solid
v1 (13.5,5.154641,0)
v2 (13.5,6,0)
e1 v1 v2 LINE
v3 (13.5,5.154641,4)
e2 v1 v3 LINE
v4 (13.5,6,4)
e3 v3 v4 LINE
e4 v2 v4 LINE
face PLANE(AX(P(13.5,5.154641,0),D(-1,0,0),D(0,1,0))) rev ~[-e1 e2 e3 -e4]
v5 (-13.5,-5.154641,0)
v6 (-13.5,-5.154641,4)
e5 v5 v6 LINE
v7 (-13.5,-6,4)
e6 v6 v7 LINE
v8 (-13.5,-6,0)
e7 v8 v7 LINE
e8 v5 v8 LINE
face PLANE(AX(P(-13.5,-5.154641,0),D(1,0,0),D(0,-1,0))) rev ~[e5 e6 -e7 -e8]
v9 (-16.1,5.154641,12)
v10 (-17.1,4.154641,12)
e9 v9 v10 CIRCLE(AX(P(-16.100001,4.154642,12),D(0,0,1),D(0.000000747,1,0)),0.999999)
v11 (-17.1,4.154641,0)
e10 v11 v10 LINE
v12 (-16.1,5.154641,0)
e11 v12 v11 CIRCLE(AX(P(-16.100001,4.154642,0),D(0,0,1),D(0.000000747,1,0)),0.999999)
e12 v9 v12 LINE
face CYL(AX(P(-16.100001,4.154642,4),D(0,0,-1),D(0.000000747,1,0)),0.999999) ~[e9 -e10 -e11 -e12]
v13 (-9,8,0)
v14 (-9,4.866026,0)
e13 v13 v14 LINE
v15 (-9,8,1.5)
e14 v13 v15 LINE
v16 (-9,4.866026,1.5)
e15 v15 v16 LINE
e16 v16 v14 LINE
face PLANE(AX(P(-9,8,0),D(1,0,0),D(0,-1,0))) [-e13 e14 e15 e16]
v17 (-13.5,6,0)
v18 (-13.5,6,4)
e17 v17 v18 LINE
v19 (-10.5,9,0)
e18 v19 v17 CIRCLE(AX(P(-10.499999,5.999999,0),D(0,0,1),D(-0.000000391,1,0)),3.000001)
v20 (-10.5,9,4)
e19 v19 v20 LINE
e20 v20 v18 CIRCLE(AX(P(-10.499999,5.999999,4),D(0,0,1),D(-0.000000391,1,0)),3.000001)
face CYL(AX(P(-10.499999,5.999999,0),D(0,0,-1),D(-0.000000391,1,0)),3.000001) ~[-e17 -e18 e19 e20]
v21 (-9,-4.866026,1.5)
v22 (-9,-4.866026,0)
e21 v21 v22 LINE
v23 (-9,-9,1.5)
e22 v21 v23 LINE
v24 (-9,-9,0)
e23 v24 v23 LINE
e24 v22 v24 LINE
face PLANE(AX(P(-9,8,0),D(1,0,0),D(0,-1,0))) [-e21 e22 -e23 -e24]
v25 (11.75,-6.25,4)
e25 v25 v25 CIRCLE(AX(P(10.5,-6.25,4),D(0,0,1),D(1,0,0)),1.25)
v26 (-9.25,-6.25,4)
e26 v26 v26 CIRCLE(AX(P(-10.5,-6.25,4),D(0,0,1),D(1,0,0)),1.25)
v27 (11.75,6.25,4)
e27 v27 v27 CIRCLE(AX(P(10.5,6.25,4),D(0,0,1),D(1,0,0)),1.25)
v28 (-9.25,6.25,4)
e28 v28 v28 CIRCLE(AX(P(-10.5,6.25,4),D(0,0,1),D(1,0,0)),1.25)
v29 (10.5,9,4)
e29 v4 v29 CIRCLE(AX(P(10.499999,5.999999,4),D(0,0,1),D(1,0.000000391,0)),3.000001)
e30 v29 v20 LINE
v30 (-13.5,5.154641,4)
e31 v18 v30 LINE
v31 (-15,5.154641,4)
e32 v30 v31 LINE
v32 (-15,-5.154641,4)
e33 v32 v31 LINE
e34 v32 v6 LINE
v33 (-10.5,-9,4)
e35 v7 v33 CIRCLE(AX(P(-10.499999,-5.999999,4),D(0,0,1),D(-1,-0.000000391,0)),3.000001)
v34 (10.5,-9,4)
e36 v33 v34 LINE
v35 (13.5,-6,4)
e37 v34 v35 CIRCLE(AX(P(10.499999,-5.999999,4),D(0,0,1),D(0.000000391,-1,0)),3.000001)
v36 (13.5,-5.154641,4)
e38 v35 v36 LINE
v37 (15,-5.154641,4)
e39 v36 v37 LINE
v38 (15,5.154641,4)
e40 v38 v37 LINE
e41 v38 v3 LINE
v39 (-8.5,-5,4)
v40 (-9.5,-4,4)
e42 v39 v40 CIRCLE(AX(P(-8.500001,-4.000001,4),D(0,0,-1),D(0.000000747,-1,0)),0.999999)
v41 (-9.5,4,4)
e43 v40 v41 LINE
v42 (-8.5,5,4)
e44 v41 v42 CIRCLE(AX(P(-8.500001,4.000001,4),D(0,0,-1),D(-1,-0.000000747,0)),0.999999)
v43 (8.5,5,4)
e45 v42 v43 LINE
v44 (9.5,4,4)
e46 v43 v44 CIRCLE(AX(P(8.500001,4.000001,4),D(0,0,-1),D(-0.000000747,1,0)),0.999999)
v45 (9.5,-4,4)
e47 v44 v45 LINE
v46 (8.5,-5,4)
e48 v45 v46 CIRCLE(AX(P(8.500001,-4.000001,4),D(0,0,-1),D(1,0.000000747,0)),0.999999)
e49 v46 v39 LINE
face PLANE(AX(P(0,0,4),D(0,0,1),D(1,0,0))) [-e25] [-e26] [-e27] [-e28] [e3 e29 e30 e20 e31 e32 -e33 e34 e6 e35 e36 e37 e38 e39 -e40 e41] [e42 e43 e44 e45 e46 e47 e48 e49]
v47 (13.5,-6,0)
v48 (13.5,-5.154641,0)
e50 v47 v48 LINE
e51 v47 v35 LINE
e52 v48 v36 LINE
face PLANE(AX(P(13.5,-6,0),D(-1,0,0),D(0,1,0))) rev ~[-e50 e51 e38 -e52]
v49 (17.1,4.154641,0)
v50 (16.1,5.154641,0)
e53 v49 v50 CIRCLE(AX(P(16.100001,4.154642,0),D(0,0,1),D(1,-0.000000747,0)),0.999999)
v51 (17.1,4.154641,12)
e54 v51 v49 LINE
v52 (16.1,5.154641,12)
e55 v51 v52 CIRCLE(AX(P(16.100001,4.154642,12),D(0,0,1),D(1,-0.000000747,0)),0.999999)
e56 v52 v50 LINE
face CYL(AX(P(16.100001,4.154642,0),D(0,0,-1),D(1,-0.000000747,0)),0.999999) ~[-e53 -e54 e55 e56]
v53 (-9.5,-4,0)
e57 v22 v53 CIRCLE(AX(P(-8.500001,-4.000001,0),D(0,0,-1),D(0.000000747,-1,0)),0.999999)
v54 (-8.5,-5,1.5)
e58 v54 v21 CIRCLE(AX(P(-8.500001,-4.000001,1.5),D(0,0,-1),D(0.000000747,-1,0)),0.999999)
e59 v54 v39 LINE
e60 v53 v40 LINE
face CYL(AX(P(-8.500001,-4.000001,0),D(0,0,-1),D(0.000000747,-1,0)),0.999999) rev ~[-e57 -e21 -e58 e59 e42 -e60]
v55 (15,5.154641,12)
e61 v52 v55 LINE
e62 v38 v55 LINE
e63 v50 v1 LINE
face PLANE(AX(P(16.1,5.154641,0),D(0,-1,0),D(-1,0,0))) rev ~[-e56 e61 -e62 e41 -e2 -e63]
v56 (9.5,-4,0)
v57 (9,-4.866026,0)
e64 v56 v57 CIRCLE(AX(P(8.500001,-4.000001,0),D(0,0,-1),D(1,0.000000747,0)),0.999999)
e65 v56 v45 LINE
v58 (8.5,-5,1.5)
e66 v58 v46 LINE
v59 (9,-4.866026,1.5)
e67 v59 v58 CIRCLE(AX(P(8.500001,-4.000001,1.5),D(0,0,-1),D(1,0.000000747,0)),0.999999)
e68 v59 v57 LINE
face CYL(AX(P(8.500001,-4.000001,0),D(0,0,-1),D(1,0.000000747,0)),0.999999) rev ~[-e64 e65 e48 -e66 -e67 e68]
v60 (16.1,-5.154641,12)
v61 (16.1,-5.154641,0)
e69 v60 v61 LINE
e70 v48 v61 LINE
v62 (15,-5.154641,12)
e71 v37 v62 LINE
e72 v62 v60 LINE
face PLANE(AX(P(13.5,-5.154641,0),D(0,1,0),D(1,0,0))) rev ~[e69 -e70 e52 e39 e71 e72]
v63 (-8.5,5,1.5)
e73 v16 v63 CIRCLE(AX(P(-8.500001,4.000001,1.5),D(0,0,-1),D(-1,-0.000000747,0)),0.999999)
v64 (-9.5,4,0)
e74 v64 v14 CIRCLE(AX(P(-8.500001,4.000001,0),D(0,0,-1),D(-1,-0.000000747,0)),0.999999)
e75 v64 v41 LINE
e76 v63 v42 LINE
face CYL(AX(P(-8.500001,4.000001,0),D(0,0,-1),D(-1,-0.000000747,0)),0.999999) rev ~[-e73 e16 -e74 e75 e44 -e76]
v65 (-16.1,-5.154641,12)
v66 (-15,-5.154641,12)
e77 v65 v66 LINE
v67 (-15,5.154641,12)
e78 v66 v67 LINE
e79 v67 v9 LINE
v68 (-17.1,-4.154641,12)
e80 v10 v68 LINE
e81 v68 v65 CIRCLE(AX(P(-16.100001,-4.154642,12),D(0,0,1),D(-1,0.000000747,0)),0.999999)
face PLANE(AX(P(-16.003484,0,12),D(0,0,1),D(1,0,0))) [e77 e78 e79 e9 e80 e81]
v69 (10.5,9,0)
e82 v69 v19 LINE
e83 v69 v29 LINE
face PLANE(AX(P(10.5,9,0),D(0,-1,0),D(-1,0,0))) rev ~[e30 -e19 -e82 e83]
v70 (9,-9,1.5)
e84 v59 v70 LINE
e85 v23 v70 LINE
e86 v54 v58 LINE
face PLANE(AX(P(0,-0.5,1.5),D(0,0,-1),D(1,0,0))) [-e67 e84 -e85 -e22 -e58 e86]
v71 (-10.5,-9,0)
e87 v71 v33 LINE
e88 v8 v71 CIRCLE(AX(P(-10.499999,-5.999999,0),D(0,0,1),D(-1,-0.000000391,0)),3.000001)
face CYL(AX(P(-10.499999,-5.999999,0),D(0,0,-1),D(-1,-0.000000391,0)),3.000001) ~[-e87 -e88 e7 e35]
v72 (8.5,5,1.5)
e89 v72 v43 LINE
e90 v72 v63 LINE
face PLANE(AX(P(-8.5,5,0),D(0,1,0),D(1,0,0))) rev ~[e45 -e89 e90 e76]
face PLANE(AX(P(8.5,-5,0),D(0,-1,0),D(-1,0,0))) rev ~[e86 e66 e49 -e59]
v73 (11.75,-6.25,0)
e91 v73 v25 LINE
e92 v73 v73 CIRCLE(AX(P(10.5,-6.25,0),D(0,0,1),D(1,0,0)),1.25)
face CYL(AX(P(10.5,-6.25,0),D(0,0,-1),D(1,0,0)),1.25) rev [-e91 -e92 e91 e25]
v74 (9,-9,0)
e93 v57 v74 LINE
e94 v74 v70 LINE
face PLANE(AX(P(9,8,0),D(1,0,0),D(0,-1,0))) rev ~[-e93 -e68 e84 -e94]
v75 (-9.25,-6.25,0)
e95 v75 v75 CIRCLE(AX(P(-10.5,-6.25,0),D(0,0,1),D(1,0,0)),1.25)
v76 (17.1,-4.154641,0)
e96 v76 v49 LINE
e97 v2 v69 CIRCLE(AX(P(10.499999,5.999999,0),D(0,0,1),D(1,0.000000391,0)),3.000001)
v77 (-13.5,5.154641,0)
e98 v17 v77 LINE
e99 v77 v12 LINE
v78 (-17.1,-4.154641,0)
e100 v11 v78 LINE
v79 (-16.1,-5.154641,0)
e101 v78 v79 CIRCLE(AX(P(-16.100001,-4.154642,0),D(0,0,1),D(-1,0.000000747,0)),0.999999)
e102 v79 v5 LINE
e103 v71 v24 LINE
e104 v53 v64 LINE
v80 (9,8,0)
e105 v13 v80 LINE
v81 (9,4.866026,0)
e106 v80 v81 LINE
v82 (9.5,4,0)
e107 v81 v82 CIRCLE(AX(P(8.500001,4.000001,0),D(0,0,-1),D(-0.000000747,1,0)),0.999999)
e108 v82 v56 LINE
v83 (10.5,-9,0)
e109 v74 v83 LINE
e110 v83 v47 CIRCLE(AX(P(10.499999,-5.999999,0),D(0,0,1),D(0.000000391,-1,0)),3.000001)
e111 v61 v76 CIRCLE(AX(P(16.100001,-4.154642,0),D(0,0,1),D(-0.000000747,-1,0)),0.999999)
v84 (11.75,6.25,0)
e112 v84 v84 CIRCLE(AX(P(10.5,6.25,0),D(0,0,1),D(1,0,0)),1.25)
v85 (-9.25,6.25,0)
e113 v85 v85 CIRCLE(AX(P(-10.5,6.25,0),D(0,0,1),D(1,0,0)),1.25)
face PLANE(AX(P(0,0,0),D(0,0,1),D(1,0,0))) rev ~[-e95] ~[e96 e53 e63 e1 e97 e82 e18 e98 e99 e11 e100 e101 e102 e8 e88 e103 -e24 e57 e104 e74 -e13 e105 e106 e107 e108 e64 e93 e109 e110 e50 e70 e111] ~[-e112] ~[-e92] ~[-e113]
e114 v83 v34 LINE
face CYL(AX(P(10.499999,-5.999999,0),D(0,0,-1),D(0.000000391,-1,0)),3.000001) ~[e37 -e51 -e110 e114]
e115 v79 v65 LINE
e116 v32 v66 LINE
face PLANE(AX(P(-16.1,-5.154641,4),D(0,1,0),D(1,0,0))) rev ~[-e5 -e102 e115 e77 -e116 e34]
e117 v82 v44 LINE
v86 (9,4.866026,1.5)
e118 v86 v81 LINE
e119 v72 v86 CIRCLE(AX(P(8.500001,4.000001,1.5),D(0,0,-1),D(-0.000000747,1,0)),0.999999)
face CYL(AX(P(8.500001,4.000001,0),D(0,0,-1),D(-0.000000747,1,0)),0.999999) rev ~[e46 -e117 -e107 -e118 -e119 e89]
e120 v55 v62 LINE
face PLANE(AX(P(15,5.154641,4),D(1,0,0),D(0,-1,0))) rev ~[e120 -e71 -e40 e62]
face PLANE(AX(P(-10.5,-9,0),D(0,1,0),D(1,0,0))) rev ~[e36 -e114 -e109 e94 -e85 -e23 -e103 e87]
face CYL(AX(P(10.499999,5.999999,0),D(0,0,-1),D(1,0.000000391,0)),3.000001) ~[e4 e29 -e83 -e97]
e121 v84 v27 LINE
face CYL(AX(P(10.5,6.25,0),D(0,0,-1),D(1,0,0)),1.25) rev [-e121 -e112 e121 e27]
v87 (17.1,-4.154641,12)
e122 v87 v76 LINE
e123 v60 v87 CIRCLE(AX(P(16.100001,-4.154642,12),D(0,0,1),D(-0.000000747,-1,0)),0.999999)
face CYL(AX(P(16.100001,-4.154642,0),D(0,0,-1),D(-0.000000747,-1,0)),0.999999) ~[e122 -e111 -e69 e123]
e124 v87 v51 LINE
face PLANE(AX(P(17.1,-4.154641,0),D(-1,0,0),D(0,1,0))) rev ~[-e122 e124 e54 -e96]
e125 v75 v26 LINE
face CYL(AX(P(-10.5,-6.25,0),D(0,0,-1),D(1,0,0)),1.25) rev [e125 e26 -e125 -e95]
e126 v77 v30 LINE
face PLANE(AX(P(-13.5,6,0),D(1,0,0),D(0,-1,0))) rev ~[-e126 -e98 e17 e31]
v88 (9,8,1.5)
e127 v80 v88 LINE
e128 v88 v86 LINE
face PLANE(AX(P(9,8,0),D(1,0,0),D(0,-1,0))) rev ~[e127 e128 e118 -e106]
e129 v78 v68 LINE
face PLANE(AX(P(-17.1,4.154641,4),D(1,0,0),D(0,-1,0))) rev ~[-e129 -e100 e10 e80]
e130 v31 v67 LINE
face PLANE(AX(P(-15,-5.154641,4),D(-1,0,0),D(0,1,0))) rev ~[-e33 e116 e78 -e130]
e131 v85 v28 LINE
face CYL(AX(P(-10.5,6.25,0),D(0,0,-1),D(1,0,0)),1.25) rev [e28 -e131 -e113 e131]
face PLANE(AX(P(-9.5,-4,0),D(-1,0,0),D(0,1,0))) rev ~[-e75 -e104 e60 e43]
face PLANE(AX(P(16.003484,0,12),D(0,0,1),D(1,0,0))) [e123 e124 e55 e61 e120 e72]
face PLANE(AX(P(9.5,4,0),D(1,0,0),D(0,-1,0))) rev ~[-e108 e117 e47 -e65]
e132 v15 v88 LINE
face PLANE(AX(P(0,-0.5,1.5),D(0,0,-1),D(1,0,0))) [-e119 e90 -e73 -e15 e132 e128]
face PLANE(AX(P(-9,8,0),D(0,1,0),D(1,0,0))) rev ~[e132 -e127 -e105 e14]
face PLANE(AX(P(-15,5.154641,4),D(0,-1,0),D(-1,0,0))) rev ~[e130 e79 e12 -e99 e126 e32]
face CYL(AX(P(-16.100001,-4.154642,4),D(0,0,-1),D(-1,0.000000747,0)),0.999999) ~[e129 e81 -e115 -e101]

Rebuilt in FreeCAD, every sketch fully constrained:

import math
import FreeCAD as App
import Part
import Sketcher

doc = App.newDocument("Part")
body = doc.addObject("PartDesign::Body", "Body")

sketch1 = body.newObject("Sketcher::SketchObject", "Sketch")
sketch1.AttachmentSupport = (doc.getObject("XY_Plane"), [""])
sketch1.MapMode = "FlatFace"
sketch1.addGeometry([
    Part.LineSegment(App.Vector(-10.5, -9, 0), App.Vector(10.5, -9, 0)),
    Part.ArcOfCircle(Part.Circle(App.Vector(10.5, -6, 0), App.Vector(0, 0, 1), 3), math.radians(-90), math.radians(0)),
    Part.LineSegment(App.Vector(13.5, -6, 0), App.Vector(13.5, -5.2, 0)),
    Part.LineSegment(App.Vector(13.5, -5.2, 0), App.Vector(16.1, -5.2, 0)),
    Part.ArcOfCircle(Part.Circle(App.Vector(16.1, -4.2, 0), App.Vector(0, 0, 1), 1), math.radians(-90), math.radians(0)),
    Part.LineSegment(App.Vector(17.1, -4.2, 0), App.Vector(17.1, 4.2, 0)),
    Part.ArcOfCircle(Part.Circle(App.Vector(16.1, 4.2, 0), App.Vector(0, 0, 1), 1), math.radians(0), math.radians(90)),
    Part.LineSegment(App.Vector(16.1, 5.2, 0), App.Vector(13.5, 5.2, 0)),
    Part.LineSegment(App.Vector(13.5, 5.2, 0), App.Vector(13.5, 6, 0)),
    Part.ArcOfCircle(Part.Circle(App.Vector(10.5, 6, 0), App.Vector(0, 0, 1), 3), math.radians(0), math.radians(90)),
    Part.LineSegment(App.Vector(10.5, 9, 0), App.Vector(-10.5, 9, 0)),
    Part.ArcOfCircle(Part.Circle(App.Vector(-10.5, 6, 0), App.Vector(0, 0, 1), 3), math.radians(90), math.radians(180)),
    Part.LineSegment(App.Vector(-13.5, 6, 0), App.Vector(-13.5, 5.2, 0)),
    Part.LineSegment(App.Vector(-13.5, 5.2, 0), App.Vector(-16.1, 5.2, 0)),
    Part.ArcOfCircle(Part.Circle(App.Vector(-16.1, 4.2, 0), App.Vector(0, 0, 1), 1), math.radians(90), math.radians(180)),
    Part.LineSegment(App.Vector(-17.1, 4.2, 0), App.Vector(-17.1, -4.2, 0)),
    Part.ArcOfCircle(Part.Circle(App.Vector(-16.1, -4.2, 0), App.Vector(0, 0, 1), 1), math.radians(180), math.radians(270)),
    Part.LineSegment(App.Vector(-16.1, -5.2, 0), App.Vector(-13.5, -5.2, 0)),
    Part.LineSegment(App.Vector(-13.5, -5.2, 0), App.Vector(-13.5, -6, 0)),
    Part.ArcOfCircle(Part.Circle(App.Vector(-10.5, -6, 0), App.Vector(0, 0, 1), 3), math.radians(-180), math.radians(-90)),
    Part.Circle(App.Vector(-10.5, -6.2, 0), App.Vector(0, 0, 1), 1.2),
    Part.Circle(App.Vector(10.5, -6.2, 0), App.Vector(0, 0, 1), 1.2),
    Part.Circle(App.Vector(-10.5, 6.2, 0), App.Vector(0, 0, 1), 1.2),
    Part.LineSegment(App.Vector(9.5, 4, 0), App.Vector(9.5, -4, 0)),
    Part.ArcOfCircle(Part.Circle(App.Vector(8.5, -4, 0), App.Vector(0, 0, 1), 1), math.radians(-90), math.radians(0)),
    Part.LineSegment(App.Vector(8.5, -5, 0), App.Vector(-8.5, -5, 0)),
    Part.ArcOfCircle(Part.Circle(App.Vector(-8.5, -4, 0), App.Vector(0, 0, 1), 1), math.radians(180), math.radians(270)),
    Part.LineSegment(App.Vector(-9.5, -4, 0), App.Vector(-9.5, 4, 0)),
    Part.ArcOfCircle(Part.Circle(App.Vector(-8.5, 4, 0), App.Vector(0, 0, 1), 1), math.radians(90), math.radians(180)),
    Part.LineSegment(App.Vector(-8.5, 5, 0), App.Vector(8.5, 5, 0)),
    Part.ArcOfCircle(Part.Circle(App.Vector(8.5, 4, 0), App.Vector(0, 0, 1), 1), math.radians(0), math.radians(90)),
    Part.Circle(App.Vector(10.5, 6.2, 0), App.Vector(0, 0, 1), 1.2),
], False)
sketch1.addConstraint([
    Sketcher.Constraint("Tangent", 0, 2, 1, 1),
    Sketcher.Constraint("Tangent", 1, 2, 2, 1),
    Sketcher.Constraint("Coincident", 2, 2, 3, 1),
    Sketcher.Constraint("Tangent", 3, 2, 4, 1),
    Sketcher.Constraint("Tangent", 4, 2, 5, 1),
    Sketcher.Constraint("Tangent", 5, 2, 6, 1),
    Sketcher.Constraint("Tangent", 6, 2, 7, 1),
    Sketcher.Constraint("Coincident", 7, 2, 8, 1),
    Sketcher.Constraint("Tangent", 8, 2, 9, 1),
    Sketcher.Constraint("Tangent", 9, 2, 10, 1),
    Sketcher.Constraint("Tangent", 10, 2, 11, 1),
    Sketcher.Constraint("Tangent", 11, 2, 12, 1),
    Sketcher.Constraint("Coincident", 12, 2, 13, 1),
    Sketcher.Constraint("Tangent", 13, 2, 14, 1),
    Sketcher.Constraint("Tangent", 14, 2, 15, 1),
    Sketcher.Constraint("Tangent", 15, 2, 16, 1),
    Sketcher.Constraint("Tangent", 16, 2, 17, 1),
    Sketcher.Constraint("Coincident", 17, 2, 18, 1),
    Sketcher.Constraint("Tangent", 18, 2, 19, 1),
    Sketcher.Constraint("Tangent", 19, 2, 0, 1),
    Sketcher.Constraint("Tangent", 23, 2, 24, 2),
    Sketcher.Constraint("Tangent", 24, 1, 25, 1),
    Sketcher.Constraint("Tangent", 25, 2, 26, 2),
    Sketcher.Constraint("Tangent", 26, 1, 27, 1),
    Sketcher.Constraint("Tangent", 27, 2, 28, 2),
    Sketcher.Constraint("Tangent", 28, 1, 29, 1),
    Sketcher.Constraint("Tangent", 29, 2, 30, 2),
    Sketcher.Constraint("Tangent", 30, 1, 23, 1),
    Sketcher.Constraint("Horizontal", 0),
    Sketcher.Constraint("Vertical", 2),
    Sketcher.Constraint("Horizontal", 3),
    Sketcher.Constraint("Vertical", 5),
    Sketcher.Constraint("Horizontal", 7),
    Sketcher.Constraint("Vertical", 8),
    Sketcher.Constraint("Horizontal", 10),
    Sketcher.Constraint("Vertical", 12),
    Sketcher.Constraint("Horizontal", 13),
    Sketcher.Constraint("Vertical", 15),
    Sketcher.Constraint("Horizontal", 17),
    Sketcher.Constraint("Vertical", 18),
    Sketcher.Constraint("Vertical", 23),
    Sketcher.Constraint("Horizontal", 25),
    Sketcher.Constraint("Vertical", 27),
    Sketcher.Constraint("Horizontal", 29),
    Sketcher.Constraint("Equal", 4, 6),
    Sketcher.Constraint("Equal", 1, 9),
    Sketcher.Constraint("Equal", 9, 11),
    Sketcher.Constraint("Equal", 6, 14),
    Sketcher.Constraint("Equal", 14, 16),
    Sketcher.Constraint("Equal", 11, 19),
    Sketcher.Constraint("Equal", 20, 21),
    Sketcher.Constraint("Equal", 21, 22),
    Sketcher.Constraint("Equal", 16, 24),
    Sketcher.Constraint("Equal", 24, 26),
    Sketcher.Constraint("Equal", 26, 28),
    Sketcher.Constraint("Equal", 28, 30),
    Sketcher.Constraint("Equal", 22, 31),
    Sketcher.Constraint("Symmetric", 1, 3, 11, 3, -1, 1),
    Sketcher.Constraint("Symmetric", 4, 3, 14, 3, -1, 1),
    Sketcher.Constraint("Symmetric", 21, 3, 22, 3, -1, 1),
    Sketcher.Constraint("Symmetric", 24, 3, 28, 3, -1, 1),
    Sketcher.Constraint("Symmetric", 20, 3, 31, 3, -1, 1),
    Sketcher.Constraint("Symmetric", 7, 2, 17, 2, -1, 1),
    Sketcher.Constraint("Symmetric", 20, 3, 21, 3, -2),
    Sketcher.Constraint("Symmetric", 7, 2, 12, 2, -2),
    Sketcher.Constraint("Vertical", 19, 3, 20, 3),
    Sketcher.Constraint("Radius", 1, 3.000001),
    Sketcher.Constraint("Radius", 4, 0.999999),
    Sketcher.Constraint("Diameter", 20, 2.5),
    Sketcher.Constraint("DistanceX", 0, 1, 0, 2, 21.0),
    Sketcher.Constraint("DistanceX", 25, 2, 25, 1, 17.0),
    Sketcher.Constraint("DistanceY", 23, 2, 23, 1, 8.0),
    Sketcher.Constraint("DistanceX", 3, 1, 3, 2, 2.6),
    Sketcher.Constraint("DistanceY", 1, 3, -1, 1, 5.999999),
    Sketcher.Constraint("DistanceY", 20, 3, 22, 3, 12.5),
    Sketcher.Constraint("DistanceY", 2, 1, 2, 2, 0.845359),
])
pad1 = body.newObject("PartDesign::Pad", "Pad")
pad1.Profile = sketch1
pad1.Length = 4

sketch2 = body.newObject("Sketcher::SketchObject", "Sketch001")
sketch2.AttachmentSupport = (doc.getObject("XY_Plane"), [""])
sketch2.MapMode = "FlatFace"
sketch2.addGeometry([
    Part.LineSegment(App.Vector(-9, -9, 0), App.Vector(-9, 8, 0)),
    Part.LineSegment(App.Vector(-9, 8, 0), App.Vector(9, 8, 0)),
    Part.LineSegment(App.Vector(9, 8, 0), App.Vector(9, -9, 0)),
    Part.LineSegment(App.Vector(9, -9, 0), App.Vector(-9, -9, 0)),
], False)
sketch2.addConstraint([
    Sketcher.Constraint("Coincident", 0, 2, 1, 1),
    Sketcher.Constraint("Coincident", 1, 2, 2, 1),
    Sketcher.Constraint("Coincident", 2, 2, 3, 1),
    Sketcher.Constraint("Coincident", 3, 2, 0, 1),
    Sketcher.Constraint("Vertical", 0),
    Sketcher.Constraint("Horizontal", 1),
    Sketcher.Constraint("Vertical", 2),
    Sketcher.Constraint("Horizontal", 3),
    Sketcher.Constraint("DistanceX", 1, 1, 1, 2, 18.0),
    Sketcher.Constraint("DistanceY", 0, 1, 0, 2, 17.0),
    Sketcher.Constraint("DistanceX", 0, 2, -1, 1, 9.0),
    Sketcher.Constraint("DistanceY", -1, 1, 0, 2, 8.0),
])
pocket1 = body.newObject("PartDesign::Pocket", "Pocket")
pocket1.Profile = sketch2
pocket1.Length = 1.5
pocket1.Reversed = True

sketch3 = body.newObject("Sketcher::SketchObject", "Sketch002")
sketch3.AttachmentSupport = (doc.getObject("XY_Plane"), [""])
sketch3.MapMode = "FlatFace"
sketch3.AttachmentOffset = App.Placement(App.Vector(0, 0, 4), App.Rotation())
sketch3.addGeometry([
    Part.ArcOfCircle(Part.Circle(App.Vector(-16.1, 4.2, 0), App.Vector(0, 0, 1), 1), math.radians(90), math.radians(180)),
    Part.LineSegment(App.Vector(-17.1, 4.2, 0), App.Vector(-17.1, -4.2, 0)),
    Part.ArcOfCircle(Part.Circle(App.Vector(-16.1, -4.2, 0), App.Vector(0, 0, 1), 1), math.radians(180), math.radians(270)),
    Part.LineSegment(App.Vector(-16.1, -5.2, 0), App.Vector(-15, -5.2, 0)),
    Part.LineSegment(App.Vector(-15, -5.2, 0), App.Vector(-15, 5.2, 0)),
    Part.LineSegment(App.Vector(-15, 5.2, 0), App.Vector(-16.1, 5.2, 0)),
    Part.ArcOfCircle(Part.Circle(App.Vector(16.1, 4.2, 0), App.Vector(0, 0, 1), 1), math.radians(0), math.radians(90)),
    Part.LineSegment(App.Vector(16.1, 5.2, 0), App.Vector(15, 5.2, 0)),
    Part.LineSegment(App.Vector(15, 5.2, 0), App.Vector(15, -5.2, 0)),
    Part.LineSegment(App.Vector(15, -5.2, 0), App.Vector(16.1, -5.2, 0)),
    Part.ArcOfCircle(Part.Circle(App.Vector(16.1, -4.2, 0), App.Vector(0, 0, 1), 1), math.radians(-90), math.radians(0)),
    Part.LineSegment(App.Vector(17.1, -4.2, 0), App.Vector(17.1, 4.2, 0)),
], False)
sketch3.addConstraint([
    Sketcher.Constraint("Tangent", 0, 2, 1, 1),
    Sketcher.Constraint("Tangent", 1, 2, 2, 1),
    Sketcher.Constraint("Tangent", 2, 2, 3, 1),
    Sketcher.Constraint("Coincident", 3, 2, 4, 1),
    Sketcher.Constraint("Coincident", 4, 2, 5, 1),
    Sketcher.Constraint("Tangent", 5, 2, 0, 1),
    Sketcher.Constraint("Tangent", 6, 2, 7, 1),
    Sketcher.Constraint("Coincident", 7, 2, 8, 1),
    Sketcher.Constraint("Coincident", 8, 2, 9, 1),
    Sketcher.Constraint("Tangent", 9, 2, 10, 1),
    Sketcher.Constraint("Tangent", 10, 2, 11, 1),
    Sketcher.Constraint("Tangent", 11, 2, 6, 1),
    Sketcher.Constraint("Vertical", 1),
    Sketcher.Constraint("Horizontal", 3),
    Sketcher.Constraint("Vertical", 4),
    Sketcher.Constraint("Horizontal", 5),
    Sketcher.Constraint("Horizontal", 7),
    Sketcher.Constraint("Vertical", 8),
    Sketcher.Constraint("Horizontal", 9),
    Sketcher.Constraint("Vertical", 11),
    Sketcher.Constraint("Equal", 0, 2),
    Sketcher.Constraint("Equal", 2, 6),
    Sketcher.Constraint("Equal", 6, 10),
    Sketcher.Constraint("Symmetric", 2, 3, 6, 3, -1, 1),
    Sketcher.Constraint("Symmetric", 4, 2, 8, 2, -1, 1),
    Sketcher.Constraint("Horizontal", 0, 3, 6, 3),
    Sketcher.Constraint("Radius", 0, 0.999999),
    Sketcher.Constraint("DistanceX", 3, 1, 3, 2, 1.1),
    Sketcher.Constraint("DistanceX", 3, 2, -1, 1, 15.0),
    Sketcher.Constraint("DistanceY", 1, 2, 1, 1, 8.309282),
])
pad2 = body.newObject("PartDesign::Pad", "Pad001")
pad2.Profile = sketch3
pad2.Length = 8

doc.recompute()
